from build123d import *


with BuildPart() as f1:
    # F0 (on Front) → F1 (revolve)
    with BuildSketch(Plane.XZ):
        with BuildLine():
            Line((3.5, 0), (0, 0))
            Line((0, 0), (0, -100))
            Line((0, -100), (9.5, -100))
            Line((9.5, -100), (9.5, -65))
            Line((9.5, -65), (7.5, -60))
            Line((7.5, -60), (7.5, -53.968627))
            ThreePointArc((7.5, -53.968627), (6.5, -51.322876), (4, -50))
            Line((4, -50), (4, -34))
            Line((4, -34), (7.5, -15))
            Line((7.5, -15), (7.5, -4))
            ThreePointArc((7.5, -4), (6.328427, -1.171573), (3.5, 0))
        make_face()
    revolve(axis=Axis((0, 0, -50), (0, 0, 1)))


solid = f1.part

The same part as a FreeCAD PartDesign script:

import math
import FreeCAD as App
import Part
import Sketcher
from FreeCAD import Vector
Q = App.Units.Quantity

doc = App.newDocument("Part")
body = doc.addObject("PartDesign::Body", "Body")

# Sketch on XZ plane
sketch1 = doc.addObject("Sketcher::SketchObject", "Sketch")
body.addObject(sketch1)
sketch1.AttachmentSupport = (doc.XZ_Plane, [""])
sketch1.MapMode = "FlatFace"
sketch1.addGeometry([
    Part.LineSegment(Vector(3.5, 0, 0), Vector(0, 0, 0)),  # 0
    Part.LineSegment(Vector(0, 0, 0), Vector(0, -100, 0)),  # 1
    Part.LineSegment(Vector(0, -100, 0), Vector(9.5, -100, 0)),  # 2
    Part.LineSegment(Vector(9.5, -100, 0), Vector(9.5, -65, 0)),  # 3
    Part.LineSegment(Vector(9.5, -65, 0), Vector(7.5, -60, 0)),  # 4
    Part.LineSegment(Vector(7.5, -60, 0), Vector(7.5, -54, 0)),  # 5
    Part.ArcOfCircle(Part.Circle(Vector(3.5, -54, 0), Vector(0, 0, 1), 4), math.radians(0), math.radians(83)),  # 6
    Part.LineSegment(Vector(4, -50, 0), Vector(4, -34, 0)),  # 7
    Part.LineSegment(Vector(4, -34, 0), Vector(7.5, -15, 0)),  # 8
    Part.LineSegment(Vector(7.5, -15, 0), Vector(7.5, -4, 0)),  # 9
    Part.ArcOfCircle(Part.Circle(Vector(3.5, -4, 0), Vector(0, 0, 1), 4), math.radians(0), math.radians(90)),  # 10
], False)
sketch1.addConstraint([
    Sketcher.Constraint("Coincident", 0, 2, 1, 1),
    Sketcher.Constraint("Coincident", 1, 2, 2, 1),
    Sketcher.Constraint("Coincident", 2, 2, 3, 1),
    Sketcher.Constraint("Coincident", 3, 2, 4, 1),
    Sketcher.Constraint("Coincident", 4, 2, 5, 1),
    Sketcher.Constraint("Tangent", 5, 2, 6, 1),
    Sketcher.Constraint("Coincident", 6, 2, 7, 1),
    Sketcher.Constraint("Coincident", 7, 2, 8, 1),
    Sketcher.Constraint("Coincident", 8, 2, 9, 1),
    Sketcher.Constraint("Tangent", 9, 2, 10, 1),
    Sketcher.Constraint("Tangent", 10, 2, 0, 1),
    Sketcher.Constraint("Horizontal", 0),
    Sketcher.Constraint("Vertical", 1),
    Sketcher.Constraint("Horizontal", 2),
    Sketcher.Constraint("Vertical", 3),
    Sketcher.Constraint("Vertical", 5),
    Sketcher.Constraint("Vertical", 7),
    Sketcher.Constraint("Vertical", 9),
    Sketcher.Constraint("Coincident", 0, 2, -1, 1),
    Sketcher.Constraint("Equal", 6, 10),
    Sketcher.Constraint("Vertical", 6, 3, 10, 3),
    Sketcher.Constraint("Radius", 6, Q("4.000001 mm")),
    Sketcher.Constraint("DistanceY", 1, 2, 1, 1, Q("100 mm")),
    Sketcher.Constraint("DistanceY", 3, 1, 3, 2, Q("35 mm")),
    Sketcher.Constraint("DistanceY", 7, 1, 7, 2, Q("16 mm")),
    Sketcher.Constraint("DistanceY", 9, 1, 9, 2, Q("11 mm")),
    Sketcher.Constraint("DistanceX", 0, 2, 0, 1, Q("3.5 mm")),
    Sketcher.Constraint("DistanceX", 2, 1, 2, 2, Q("9.5 mm")),
    Sketcher.Constraint("DistanceY", 4, 2, -1, 1, Q("60 mm")),
    Sketcher.Constraint("DistanceX", -1, 1, 6, 2, Q("4 mm")),
    Sketcher.Constraint("DistanceY", 6, 2, -1, 1, Q("50 mm")),
])
revolution = doc.addObject("PartDesign::Revolution", "Revolution")
body.addObject(revolution)
revolution.Profile = sketch1
revolution.ReferenceAxis = (sketch1, ["V_Axis"])
revolution.Angle = 360

doc.recompute()
